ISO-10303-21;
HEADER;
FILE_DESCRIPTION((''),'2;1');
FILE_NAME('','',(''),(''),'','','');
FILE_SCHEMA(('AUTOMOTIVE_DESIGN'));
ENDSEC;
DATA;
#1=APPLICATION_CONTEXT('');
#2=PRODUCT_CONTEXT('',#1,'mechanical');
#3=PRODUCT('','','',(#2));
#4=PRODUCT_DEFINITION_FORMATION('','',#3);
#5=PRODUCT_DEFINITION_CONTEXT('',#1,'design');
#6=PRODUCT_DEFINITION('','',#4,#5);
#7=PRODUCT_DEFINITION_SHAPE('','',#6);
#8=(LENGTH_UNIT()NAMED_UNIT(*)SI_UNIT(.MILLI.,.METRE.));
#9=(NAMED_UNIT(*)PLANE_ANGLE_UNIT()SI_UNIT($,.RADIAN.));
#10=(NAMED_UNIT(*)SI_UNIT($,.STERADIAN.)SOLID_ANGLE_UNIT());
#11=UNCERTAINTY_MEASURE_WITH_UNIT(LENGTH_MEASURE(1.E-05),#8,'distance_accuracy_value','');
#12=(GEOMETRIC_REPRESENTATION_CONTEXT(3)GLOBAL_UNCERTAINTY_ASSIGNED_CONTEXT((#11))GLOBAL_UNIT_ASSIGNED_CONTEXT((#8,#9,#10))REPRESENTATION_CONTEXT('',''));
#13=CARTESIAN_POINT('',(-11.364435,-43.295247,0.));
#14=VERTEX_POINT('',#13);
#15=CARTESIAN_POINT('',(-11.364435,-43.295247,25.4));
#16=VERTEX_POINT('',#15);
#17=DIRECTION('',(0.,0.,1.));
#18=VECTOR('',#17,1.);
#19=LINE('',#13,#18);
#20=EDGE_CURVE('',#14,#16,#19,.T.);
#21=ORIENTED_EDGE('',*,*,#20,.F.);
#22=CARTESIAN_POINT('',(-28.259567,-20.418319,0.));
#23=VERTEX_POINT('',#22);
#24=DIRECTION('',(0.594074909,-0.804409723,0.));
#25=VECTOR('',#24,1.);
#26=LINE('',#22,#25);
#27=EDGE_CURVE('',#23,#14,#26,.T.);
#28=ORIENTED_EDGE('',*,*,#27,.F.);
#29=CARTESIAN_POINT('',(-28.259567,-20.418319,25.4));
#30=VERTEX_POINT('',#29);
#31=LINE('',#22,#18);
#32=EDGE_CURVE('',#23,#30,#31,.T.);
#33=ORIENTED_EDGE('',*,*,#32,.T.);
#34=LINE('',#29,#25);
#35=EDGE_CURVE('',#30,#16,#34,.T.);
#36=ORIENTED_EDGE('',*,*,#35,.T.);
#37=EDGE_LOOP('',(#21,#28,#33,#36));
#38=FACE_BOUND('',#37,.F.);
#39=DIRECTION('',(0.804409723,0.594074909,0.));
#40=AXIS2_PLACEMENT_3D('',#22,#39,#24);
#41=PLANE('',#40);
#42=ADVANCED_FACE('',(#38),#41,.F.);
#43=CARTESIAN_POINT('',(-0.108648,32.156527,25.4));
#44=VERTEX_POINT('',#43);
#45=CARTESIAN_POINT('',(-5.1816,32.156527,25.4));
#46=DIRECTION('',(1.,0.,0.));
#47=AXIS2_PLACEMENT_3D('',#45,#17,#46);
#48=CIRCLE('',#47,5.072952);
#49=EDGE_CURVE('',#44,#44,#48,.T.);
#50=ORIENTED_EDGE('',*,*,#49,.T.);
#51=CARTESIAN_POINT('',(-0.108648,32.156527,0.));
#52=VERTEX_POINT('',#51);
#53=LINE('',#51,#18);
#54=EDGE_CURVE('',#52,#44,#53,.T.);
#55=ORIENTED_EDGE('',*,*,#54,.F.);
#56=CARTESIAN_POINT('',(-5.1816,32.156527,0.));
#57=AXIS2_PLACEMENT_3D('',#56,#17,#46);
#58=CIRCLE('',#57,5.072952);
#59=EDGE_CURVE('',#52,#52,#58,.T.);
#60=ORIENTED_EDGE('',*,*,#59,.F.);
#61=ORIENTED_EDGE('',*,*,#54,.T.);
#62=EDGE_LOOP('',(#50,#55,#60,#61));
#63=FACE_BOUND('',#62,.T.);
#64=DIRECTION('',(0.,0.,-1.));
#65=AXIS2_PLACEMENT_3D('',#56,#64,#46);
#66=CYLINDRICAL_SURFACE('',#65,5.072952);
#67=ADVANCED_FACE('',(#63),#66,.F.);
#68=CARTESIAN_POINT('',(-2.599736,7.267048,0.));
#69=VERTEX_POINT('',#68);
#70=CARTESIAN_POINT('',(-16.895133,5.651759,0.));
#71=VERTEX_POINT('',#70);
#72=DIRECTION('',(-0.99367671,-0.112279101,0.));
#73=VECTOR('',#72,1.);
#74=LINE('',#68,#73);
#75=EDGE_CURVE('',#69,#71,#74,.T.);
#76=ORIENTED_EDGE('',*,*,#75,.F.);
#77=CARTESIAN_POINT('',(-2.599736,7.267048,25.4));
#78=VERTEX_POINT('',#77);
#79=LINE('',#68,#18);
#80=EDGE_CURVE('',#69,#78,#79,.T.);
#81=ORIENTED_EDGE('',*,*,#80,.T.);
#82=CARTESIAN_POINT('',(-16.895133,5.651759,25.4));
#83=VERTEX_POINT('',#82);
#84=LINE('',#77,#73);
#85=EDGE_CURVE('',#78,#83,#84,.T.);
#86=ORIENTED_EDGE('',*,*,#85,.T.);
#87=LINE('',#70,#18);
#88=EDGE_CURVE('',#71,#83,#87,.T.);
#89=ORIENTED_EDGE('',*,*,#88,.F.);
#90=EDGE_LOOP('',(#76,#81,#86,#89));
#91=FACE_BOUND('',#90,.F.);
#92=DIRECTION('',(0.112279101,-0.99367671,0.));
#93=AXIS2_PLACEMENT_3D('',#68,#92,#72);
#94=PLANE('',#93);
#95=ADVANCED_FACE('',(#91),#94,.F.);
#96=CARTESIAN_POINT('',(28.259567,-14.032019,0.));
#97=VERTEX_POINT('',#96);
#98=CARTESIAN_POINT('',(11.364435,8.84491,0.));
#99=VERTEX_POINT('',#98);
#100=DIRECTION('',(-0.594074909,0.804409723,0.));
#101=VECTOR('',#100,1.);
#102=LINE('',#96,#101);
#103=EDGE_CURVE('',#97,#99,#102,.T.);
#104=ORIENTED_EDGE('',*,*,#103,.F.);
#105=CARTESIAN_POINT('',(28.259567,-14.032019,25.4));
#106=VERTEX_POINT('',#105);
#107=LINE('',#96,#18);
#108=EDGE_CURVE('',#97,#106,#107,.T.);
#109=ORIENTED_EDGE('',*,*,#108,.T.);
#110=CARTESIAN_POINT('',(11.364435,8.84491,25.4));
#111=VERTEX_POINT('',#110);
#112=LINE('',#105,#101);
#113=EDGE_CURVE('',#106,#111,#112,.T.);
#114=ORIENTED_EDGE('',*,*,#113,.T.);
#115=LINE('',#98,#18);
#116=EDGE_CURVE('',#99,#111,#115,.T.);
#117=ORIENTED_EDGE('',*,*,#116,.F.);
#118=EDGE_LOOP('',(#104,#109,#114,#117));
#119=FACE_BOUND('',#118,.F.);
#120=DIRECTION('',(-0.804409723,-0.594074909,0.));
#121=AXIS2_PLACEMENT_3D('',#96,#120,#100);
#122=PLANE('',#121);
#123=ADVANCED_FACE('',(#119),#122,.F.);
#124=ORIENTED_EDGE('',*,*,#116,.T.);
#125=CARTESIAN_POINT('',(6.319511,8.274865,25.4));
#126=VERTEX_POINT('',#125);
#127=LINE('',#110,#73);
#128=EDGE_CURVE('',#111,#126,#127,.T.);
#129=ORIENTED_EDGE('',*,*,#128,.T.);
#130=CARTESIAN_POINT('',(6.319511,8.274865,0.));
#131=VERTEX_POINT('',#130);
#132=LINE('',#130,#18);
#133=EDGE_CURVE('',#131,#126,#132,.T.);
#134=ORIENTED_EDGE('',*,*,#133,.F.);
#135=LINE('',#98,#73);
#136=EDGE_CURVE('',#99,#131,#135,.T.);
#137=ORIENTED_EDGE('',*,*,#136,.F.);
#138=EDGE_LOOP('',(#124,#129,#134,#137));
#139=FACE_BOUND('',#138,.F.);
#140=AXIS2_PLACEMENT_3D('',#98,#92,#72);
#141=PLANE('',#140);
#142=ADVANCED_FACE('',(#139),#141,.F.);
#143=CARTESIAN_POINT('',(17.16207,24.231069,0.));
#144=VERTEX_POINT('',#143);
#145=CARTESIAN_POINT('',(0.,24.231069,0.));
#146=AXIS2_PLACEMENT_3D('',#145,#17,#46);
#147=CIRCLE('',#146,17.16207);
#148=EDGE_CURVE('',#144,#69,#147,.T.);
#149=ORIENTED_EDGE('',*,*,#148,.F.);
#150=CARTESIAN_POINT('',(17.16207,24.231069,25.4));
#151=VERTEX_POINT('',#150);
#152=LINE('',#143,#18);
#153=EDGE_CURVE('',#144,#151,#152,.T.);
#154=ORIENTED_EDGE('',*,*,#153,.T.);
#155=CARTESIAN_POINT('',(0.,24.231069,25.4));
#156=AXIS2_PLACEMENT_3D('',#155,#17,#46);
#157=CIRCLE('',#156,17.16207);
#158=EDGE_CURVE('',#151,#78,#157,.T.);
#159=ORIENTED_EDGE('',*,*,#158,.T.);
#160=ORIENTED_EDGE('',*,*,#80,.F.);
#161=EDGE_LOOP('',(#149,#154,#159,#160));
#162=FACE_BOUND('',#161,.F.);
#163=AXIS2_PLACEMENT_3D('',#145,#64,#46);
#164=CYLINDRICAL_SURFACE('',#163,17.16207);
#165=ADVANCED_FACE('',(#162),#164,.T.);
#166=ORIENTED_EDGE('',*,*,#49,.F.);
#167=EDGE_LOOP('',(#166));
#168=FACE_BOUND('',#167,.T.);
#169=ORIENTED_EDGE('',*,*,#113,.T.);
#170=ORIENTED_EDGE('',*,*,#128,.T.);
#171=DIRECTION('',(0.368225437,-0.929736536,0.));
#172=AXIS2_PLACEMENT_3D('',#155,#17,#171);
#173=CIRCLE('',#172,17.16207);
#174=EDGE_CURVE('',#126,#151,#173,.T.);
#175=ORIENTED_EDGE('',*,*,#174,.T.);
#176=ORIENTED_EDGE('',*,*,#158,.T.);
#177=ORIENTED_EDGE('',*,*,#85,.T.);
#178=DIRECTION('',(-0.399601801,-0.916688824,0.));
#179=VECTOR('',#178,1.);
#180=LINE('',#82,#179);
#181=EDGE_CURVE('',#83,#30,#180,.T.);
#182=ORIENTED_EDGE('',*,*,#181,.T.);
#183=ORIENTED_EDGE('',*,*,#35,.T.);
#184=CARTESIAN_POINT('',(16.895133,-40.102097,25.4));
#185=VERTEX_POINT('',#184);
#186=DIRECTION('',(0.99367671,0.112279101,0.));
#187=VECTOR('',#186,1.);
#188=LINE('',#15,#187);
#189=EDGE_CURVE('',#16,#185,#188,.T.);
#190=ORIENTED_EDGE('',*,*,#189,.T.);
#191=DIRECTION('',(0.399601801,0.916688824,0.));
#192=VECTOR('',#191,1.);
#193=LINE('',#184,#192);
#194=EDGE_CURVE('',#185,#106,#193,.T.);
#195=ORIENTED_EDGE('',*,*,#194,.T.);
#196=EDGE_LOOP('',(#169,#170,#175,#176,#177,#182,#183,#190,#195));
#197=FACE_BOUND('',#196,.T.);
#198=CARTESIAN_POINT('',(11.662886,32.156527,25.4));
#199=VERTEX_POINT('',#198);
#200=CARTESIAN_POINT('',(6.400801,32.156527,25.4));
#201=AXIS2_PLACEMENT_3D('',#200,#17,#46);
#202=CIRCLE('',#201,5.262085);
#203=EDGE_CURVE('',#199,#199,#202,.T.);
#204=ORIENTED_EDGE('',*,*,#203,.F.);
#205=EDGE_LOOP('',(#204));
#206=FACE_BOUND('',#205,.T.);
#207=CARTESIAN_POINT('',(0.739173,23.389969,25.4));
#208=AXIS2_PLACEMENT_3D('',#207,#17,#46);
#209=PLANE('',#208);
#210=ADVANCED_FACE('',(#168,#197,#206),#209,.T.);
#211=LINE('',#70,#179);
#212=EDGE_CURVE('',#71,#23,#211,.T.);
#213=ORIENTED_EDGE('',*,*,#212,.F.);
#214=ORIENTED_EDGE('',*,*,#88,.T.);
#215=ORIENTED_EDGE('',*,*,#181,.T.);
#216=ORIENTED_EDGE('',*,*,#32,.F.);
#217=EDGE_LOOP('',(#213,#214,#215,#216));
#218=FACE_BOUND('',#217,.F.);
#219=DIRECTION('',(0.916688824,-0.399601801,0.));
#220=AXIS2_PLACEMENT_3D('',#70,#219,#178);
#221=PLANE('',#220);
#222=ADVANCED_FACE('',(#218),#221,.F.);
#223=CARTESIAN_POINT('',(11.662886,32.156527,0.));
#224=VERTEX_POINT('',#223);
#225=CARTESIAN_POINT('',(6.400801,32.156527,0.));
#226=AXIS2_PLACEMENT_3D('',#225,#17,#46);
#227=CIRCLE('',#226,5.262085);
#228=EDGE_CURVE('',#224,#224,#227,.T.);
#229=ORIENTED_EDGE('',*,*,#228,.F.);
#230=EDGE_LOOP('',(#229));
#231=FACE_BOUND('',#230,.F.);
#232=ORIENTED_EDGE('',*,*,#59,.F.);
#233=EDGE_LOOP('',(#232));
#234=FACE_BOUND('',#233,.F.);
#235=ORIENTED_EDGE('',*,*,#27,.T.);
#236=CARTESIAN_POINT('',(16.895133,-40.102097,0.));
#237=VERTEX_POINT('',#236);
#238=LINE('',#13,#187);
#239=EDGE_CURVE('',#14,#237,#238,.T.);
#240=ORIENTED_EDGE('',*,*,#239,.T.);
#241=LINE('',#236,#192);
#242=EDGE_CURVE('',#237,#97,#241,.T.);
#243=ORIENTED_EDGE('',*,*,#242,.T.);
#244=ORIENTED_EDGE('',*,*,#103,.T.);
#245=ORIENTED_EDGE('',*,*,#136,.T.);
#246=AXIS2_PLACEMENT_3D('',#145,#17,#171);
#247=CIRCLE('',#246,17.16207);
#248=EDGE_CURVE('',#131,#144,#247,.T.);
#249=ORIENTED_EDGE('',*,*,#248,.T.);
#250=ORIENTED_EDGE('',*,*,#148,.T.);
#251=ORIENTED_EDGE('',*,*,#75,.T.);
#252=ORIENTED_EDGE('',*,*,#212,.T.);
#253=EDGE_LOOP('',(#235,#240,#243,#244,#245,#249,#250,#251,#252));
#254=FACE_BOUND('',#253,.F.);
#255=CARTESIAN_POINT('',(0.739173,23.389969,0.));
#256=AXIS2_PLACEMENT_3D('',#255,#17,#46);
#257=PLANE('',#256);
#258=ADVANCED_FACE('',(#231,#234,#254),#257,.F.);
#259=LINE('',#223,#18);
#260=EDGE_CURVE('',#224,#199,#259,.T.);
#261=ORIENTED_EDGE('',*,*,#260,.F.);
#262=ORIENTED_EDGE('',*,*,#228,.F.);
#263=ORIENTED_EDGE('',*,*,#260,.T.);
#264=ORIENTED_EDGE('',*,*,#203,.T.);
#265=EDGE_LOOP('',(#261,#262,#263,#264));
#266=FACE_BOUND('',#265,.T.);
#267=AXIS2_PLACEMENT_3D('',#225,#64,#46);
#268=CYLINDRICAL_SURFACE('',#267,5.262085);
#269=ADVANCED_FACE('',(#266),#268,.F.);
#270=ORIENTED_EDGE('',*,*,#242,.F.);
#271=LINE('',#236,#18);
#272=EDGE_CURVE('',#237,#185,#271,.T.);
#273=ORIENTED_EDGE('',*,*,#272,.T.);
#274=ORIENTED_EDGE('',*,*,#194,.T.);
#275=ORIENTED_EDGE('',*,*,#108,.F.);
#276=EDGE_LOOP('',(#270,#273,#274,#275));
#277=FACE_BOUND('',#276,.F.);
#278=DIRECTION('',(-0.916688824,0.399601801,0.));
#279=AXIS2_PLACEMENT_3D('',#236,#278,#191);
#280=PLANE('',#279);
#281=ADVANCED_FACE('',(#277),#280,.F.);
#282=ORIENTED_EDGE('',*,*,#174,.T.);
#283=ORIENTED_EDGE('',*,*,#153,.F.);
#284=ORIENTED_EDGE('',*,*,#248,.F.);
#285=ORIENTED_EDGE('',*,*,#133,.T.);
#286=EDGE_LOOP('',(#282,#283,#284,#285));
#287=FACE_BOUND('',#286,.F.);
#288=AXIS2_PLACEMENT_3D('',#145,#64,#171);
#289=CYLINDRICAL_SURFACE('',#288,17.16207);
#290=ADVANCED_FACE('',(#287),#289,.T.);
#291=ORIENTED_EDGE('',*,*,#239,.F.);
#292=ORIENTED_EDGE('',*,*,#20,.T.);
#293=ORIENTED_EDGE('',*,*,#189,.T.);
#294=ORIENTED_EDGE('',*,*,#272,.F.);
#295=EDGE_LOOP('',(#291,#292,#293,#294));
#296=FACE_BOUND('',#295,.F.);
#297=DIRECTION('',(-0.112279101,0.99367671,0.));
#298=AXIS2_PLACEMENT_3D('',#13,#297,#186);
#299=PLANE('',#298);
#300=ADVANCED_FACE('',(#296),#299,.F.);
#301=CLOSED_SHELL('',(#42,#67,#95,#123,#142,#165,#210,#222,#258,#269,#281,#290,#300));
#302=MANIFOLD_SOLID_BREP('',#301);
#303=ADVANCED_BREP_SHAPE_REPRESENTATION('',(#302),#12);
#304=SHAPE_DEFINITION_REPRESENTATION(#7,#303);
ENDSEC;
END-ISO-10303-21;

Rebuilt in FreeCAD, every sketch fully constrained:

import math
import FreeCAD as App
import Part
import Sketcher
from FreeCAD import Vector
Q = App.Units.Quantity

doc = App.newDocument("Part")
body = doc.addObject("PartDesign::Body", "Body")

sketch1 = body.newObject("Sketcher::SketchObject", "Sketch")
sketch1.AttachmentSupport = (doc.getObject("XY_Plane"), [""])
sketch1.MapMode = "FlatFace"
sketch1.addGeometry(Part.ArcOfCircle(Part.Circle(Vector(0, 24, 0), Vector(0, 0, 1), 17), math.radians(-68), math.radians(0)), False)
sketch1.addGeometry(Part.ArcOfCircle(Part.Circle(Vector(0, 24, 0), Vector(0, 0, 1), 17), math.radians(0), math.radians(261)), False)
sketch1.addGeometry(Part.LineSegment(Vector(-3, 7, 0), Vector(-17, 6, 0)), False)
sketch1.addGeometry(Part.LineSegment(Vector(-17, 6, 0), Vector(-28, -20, 0)), False)
sketch1.addGeometry(Part.LineSegment(Vector(-28, -20, 0), Vector(-11, -43, 0)), False)
sketch1.addGeometry(Part.LineSegment(Vector(-11, -43, 0), Vector(17, -40, 0)), False)
sketch1.addGeometry(Part.LineSegment(Vector(17, -40, 0), Vector(28, -14, 0)), False)
sketch1.addGeometry(Part.LineSegment(Vector(28, -14, 0), Vector(11, 9, 0)), False)
sketch1.addGeometry(Part.LineSegment(Vector(11, 9, 0), Vector(6, 8, 0)), False)
sketch1.addGeometry(Part.Circle(Vector(-5, 32, 0), Vector(0, 0, 1), 5), False)
sketch1.addGeometry(Part.Circle(Vector(6, 32, 0), Vector(0, 0, 1), 5), False)
sketch1.addConstraint(Sketcher.Constraint("Tangent", 0, 2, 1, 1))
sketch1.addConstraint(Sketcher.Constraint("Coincident", 1, 2, 2, 1))
sketch1.addConstraint(Sketcher.Constraint("Coincident", 2, 2, 3, 1))
sketch1.addConstraint(Sketcher.Constraint("Coincident", 3, 2, 4, 1))
sketch1.addConstraint(Sketcher.Constraint("Coincident", 4, 2, 5, 1))
sketch1.addConstraint(Sketcher.Constraint("Coincident", 5, 2, 6, 1))
sketch1.addConstraint(Sketcher.Constraint("Coincident", 6, 2, 7, 1))
sketch1.addConstraint(Sketcher.Constraint("Coincident", 7, 2, 8, 1))
sketch1.addConstraint(Sketcher.Constraint("Coincident", 8, 2, 0, 1))
sketch1.addConstraint(Sketcher.Constraint("Equal", 0, 1))
sketch1.addConstraint(Sketcher.Constraint("PointOnObject", 0, 3, -2))
sketch1.addConstraint(Sketcher.Constraint("Parallel", 2, 5))
sketch1.addConstraint(Sketcher.Constraint("Parallel", 3, 6))
sketch1.addConstraint(Sketcher.Constraint("Parallel", 4, 7))
sketch1.addConstraint(Sketcher.Constraint("Parallel", 5, 8))
sketch1.addConstraint(Sketcher.Constraint("Horizontal", 9, 3, 10, 3))
sketch1.addConstraint(Sketcher.Constraint("Horizontal", 1, 3, 0, 2))
sketch1.addConstraint(Sketcher.Constraint("Equal", 3, 4))
sketch1.addConstraint(Sketcher.Constraint("Equal", 4, 5))
sketch1.addConstraint(Sketcher.Constraint("Equal", 5, 6))
sketch1.addConstraint(Sketcher.Constraint("Equal", 6, 7))
sketch1.addConstraint(Sketcher.Constraint("Diameter", 10, 10.52417))
sketch1.addConstraint(Sketcher.Constraint("DistanceX", 9, 3, -1, 1, Q("0.204 in")))
sketch1.addConstraint(Sketcher.Constraint("DistanceX", -1, 1, 10, 3, Q("0.252 in")))
sketch1.addConstraint(Sketcher.Constraint("Radius", 0, 17.16207))
sketch1.addConstraint(Sketcher.Constraint("Diameter", 9, 10.145903))
sketch1.addConstraint(Sketcher.Constraint("DistanceX", 2, 2, 4, 2, 5.530698))
sketch1.addConstraint(Sketcher.Constraint("DistanceX", 4, 2, 1, 2, 8.764698))
sketch1.addConstraint(Sketcher.Constraint("DistanceX", 3, 2, 5, 2, 45.1547))
sketch1.addConstraint(Sketcher.Constraint("DistanceY", -1, 1, 0, 3, 24.231069))
sketch1.addConstraint(Sketcher.Constraint("DistanceY", -1, 1, 2, 2, 5.651759))
sketch1.addConstraint(Sketcher.Constraint("DistanceY", 3, 2, -1, 1, 20.418319))
sketch1.addConstraint(Sketcher.Constraint("DistanceY", 6, 2, -1, 1, 14.032019))
sketch1.addConstraint(Sketcher.Constraint("DistanceY", 0, 3, 9, 3, 7.925458))
pad1 = body.newObject("PartDesign::Pad", "Pad")
pad1.Profile = sketch1
pad1.Length = Q("1 in")

doc.recompute()
